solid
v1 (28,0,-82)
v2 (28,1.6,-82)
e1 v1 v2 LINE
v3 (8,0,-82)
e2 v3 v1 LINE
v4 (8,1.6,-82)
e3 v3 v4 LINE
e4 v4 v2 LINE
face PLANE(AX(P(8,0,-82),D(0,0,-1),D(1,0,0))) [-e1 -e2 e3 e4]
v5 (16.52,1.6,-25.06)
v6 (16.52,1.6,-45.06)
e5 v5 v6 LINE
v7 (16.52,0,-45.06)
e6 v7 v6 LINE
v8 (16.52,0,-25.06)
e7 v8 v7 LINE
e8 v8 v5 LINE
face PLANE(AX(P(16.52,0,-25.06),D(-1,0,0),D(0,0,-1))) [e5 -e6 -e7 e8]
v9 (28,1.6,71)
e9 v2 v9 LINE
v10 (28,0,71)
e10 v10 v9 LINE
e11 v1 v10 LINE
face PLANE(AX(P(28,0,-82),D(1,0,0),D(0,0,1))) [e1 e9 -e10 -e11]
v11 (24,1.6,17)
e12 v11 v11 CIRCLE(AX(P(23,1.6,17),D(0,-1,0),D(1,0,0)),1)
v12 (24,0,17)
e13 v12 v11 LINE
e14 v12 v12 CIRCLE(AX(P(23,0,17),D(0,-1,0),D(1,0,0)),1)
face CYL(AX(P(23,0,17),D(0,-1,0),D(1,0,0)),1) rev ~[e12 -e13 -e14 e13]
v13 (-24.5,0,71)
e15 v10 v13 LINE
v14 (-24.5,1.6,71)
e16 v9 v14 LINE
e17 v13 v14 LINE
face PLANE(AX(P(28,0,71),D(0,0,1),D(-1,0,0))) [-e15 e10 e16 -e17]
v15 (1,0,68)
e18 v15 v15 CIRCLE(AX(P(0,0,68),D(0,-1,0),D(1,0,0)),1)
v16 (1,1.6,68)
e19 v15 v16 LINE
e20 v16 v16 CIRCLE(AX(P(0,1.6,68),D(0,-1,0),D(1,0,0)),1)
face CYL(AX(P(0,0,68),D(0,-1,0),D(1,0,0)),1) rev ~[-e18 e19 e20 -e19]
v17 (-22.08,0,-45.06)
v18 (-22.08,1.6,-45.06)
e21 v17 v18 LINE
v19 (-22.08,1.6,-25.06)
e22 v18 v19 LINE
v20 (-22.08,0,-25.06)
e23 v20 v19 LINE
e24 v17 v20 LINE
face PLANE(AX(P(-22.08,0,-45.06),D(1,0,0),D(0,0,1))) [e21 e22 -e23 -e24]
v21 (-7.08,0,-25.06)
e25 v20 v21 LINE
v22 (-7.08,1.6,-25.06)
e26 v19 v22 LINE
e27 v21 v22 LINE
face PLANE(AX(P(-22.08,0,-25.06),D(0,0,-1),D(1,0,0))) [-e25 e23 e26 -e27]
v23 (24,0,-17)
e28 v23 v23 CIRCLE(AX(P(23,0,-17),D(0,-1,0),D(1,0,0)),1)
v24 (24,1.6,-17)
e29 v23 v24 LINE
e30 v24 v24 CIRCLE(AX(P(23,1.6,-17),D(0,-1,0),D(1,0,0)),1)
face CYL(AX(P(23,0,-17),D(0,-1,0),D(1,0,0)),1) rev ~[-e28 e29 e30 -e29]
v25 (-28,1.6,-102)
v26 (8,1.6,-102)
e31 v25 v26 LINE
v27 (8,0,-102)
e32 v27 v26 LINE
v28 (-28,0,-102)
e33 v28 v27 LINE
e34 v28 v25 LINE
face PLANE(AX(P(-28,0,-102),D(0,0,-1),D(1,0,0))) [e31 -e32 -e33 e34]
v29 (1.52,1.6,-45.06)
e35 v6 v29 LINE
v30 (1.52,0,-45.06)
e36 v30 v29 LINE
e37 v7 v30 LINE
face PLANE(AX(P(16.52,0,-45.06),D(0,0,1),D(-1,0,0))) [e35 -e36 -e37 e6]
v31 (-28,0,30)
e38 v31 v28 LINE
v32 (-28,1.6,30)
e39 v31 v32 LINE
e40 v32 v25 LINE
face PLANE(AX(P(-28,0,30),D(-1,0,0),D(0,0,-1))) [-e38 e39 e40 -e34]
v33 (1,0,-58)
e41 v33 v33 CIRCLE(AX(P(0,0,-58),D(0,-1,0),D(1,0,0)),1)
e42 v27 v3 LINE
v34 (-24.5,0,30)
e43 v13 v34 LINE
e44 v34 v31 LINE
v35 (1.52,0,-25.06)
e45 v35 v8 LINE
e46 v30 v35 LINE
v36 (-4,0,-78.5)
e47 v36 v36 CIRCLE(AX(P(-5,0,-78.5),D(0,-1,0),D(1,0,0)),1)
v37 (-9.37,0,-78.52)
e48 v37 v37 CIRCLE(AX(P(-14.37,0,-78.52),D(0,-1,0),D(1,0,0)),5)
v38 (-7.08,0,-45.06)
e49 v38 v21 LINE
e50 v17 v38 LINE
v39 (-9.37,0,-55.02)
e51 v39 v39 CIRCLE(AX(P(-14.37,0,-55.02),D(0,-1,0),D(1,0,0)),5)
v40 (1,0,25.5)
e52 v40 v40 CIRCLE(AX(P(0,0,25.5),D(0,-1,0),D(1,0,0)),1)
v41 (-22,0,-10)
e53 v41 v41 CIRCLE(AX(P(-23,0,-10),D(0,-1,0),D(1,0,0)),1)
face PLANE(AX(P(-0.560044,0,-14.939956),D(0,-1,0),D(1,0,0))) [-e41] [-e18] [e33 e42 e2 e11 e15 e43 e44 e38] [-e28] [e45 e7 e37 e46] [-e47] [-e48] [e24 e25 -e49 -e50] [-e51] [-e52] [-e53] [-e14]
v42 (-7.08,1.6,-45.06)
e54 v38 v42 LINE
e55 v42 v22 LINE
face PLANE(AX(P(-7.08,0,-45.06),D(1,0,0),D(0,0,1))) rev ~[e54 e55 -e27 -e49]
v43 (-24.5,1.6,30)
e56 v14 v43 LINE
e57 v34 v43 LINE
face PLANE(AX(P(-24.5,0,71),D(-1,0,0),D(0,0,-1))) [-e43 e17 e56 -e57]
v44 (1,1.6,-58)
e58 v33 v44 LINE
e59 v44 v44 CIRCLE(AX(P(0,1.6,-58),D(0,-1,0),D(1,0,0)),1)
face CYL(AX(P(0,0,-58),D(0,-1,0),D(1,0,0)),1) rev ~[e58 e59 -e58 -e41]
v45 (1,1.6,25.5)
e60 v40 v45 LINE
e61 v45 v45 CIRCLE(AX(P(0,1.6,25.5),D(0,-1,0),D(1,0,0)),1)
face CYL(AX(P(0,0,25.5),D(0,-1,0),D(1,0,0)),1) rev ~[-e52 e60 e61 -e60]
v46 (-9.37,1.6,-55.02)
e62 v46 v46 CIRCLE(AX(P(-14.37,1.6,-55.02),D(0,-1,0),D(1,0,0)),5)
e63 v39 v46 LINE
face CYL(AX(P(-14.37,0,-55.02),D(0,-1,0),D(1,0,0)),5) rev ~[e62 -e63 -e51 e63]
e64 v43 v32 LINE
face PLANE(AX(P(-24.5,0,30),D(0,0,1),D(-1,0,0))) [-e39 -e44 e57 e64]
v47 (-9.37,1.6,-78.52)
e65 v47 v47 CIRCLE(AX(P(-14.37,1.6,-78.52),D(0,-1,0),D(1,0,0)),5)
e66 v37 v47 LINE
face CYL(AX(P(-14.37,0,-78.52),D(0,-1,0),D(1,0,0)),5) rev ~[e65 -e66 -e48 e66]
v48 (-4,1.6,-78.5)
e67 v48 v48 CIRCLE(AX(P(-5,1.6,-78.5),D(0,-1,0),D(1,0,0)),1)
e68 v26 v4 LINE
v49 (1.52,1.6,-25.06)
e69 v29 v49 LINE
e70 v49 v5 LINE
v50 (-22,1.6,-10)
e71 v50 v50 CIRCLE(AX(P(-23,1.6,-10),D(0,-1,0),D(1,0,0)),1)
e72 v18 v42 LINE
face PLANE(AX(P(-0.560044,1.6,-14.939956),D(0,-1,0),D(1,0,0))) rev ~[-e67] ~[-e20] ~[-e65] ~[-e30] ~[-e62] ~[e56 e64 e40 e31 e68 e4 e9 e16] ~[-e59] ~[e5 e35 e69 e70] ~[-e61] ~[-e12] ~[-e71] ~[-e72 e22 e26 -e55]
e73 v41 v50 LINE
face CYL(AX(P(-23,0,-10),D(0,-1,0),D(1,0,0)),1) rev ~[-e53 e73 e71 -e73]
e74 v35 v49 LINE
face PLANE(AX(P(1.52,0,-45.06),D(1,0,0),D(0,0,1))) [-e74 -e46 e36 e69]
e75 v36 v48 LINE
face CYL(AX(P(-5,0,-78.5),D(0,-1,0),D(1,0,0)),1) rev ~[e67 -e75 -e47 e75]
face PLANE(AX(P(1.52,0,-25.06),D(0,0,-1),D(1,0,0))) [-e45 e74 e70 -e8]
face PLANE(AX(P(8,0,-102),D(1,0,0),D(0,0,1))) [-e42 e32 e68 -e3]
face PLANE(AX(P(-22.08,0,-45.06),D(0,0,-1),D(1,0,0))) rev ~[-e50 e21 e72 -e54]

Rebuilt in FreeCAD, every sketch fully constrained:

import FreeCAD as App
import Part
import Sketcher

V = App.Vector
Q = App.Units.Quantity

doc = App.newDocument("Part")
body = doc.addObject("PartDesign::Body", "Body")

sketch1 = body.newObject("Sketcher::SketchObject", "Sketch")
sketch1.AttachmentSupport = (doc.getObject("XZ_Plane"), [""])
sketch1.MapMode = "FlatFace"
sketch1.addGeometry(Part.LineSegment(V(28, 71, 0), V(-24.5, 71, 0)), False)
sketch1.addGeometry(Part.LineSegment(V(-24.5, 71, 0), V(-24.5, 30, 0)), False)
sketch1.addGeometry(Part.LineSegment(V(-24.5, 30, 0), V(-28, 30, 0)), False)
sketch1.addGeometry(Part.LineSegment(V(-28, 30, 0), V(-28, -102, 0)), False)
sketch1.addGeometry(Part.LineSegment(V(-28, -102, 0), V(8, -102, 0)), False)
sketch1.addGeometry(Part.LineSegment(V(8, -102, 0), V(8, -82, 0)), False)
sketch1.addGeometry(Part.LineSegment(V(8, -82, 0), V(28, -82, 0)), False)
sketch1.addGeometry(Part.LineSegment(V(28, -82, 0), V(28, 71, 0)), False)
sketch1.addGeometry(Part.Circle(V(-14.37, -78.52, 0), V(0, 0, 1), 5), False)
sketch1.addGeometry(Part.Circle(V(-14.37, -55.02, 0), V(0, 0, 1), 5), False)
sketch1.addGeometry(Part.LineSegment(V(-7.08, -45.06, 0), V(-22.08, -45.06, 0)), False)
sketch1.addGeometry(Part.LineSegment(V(-22.08, -45.06, 0), V(-22.08, -25.06, 0)), False)
sketch1.addGeometry(Part.LineSegment(V(-22.08, -25.06, 0), V(-7.08, -25.06, 0)), False)
sketch1.addGeometry(Part.LineSegment(V(-7.08, -25.06, 0), V(-7.08, -45.06, 0)), False)
sketch1.addGeometry(Part.LineSegment(V(1.52, -45.06, 0), V(1.52, -25.06, 0)), False)
sketch1.addGeometry(Part.LineSegment(V(1.52, -25.06, 0), V(16.52, -25.06, 0)), False)
sketch1.addGeometry(Part.LineSegment(V(16.52, -25.06, 0), V(16.52, -45.06, 0)), False)
sketch1.addGeometry(Part.LineSegment(V(16.52, -45.06, 0), V(1.52, -45.06, 0)), False)
sketch1.addConstraint(Sketcher.Constraint("Coincident", 0, 2, 1, 1))
sketch1.addConstraint(Sketcher.Constraint("Coincident", 1, 2, 2, 1))
sketch1.addConstraint(Sketcher.Constraint("Coincident", 2, 2, 3, 1))
sketch1.addConstraint(Sketcher.Constraint("Coincident", 3, 2, 4, 1))
sketch1.addConstraint(Sketcher.Constraint("Coincident", 4, 2, 5, 1))
sketch1.addConstraint(Sketcher.Constraint("Coincident", 5, 2, 6, 1))
sketch1.addConstraint(Sketcher.Constraint("Coincident", 6, 2, 7, 1))
sketch1.addConstraint(Sketcher.Constraint("Coincident", 7, 2, 0, 1))
sketch1.addConstraint(Sketcher.Constraint("Coincident", 10, 2, 11, 1))
sketch1.addConstraint(Sketcher.Constraint("Coincident", 11, 2, 12, 1))
sketch1.addConstraint(Sketcher.Constraint("Coincident", 12, 2, 13, 1))
sketch1.addConstraint(Sketcher.Constraint("Coincident", 13, 2, 10, 1))
sketch1.addConstraint(Sketcher.Constraint("Coincident", 14, 2, 15, 1))
sketch1.addConstraint(Sketcher.Constraint("Coincident", 15, 2, 16, 1))
sketch1.addConstraint(Sketcher.Constraint("Coincident", 16, 2, 17, 1))
sketch1.addConstraint(Sketcher.Constraint("Coincident", 17, 2, 14, 1))
sketch1.addConstraint(Sketcher.Constraint("Horizontal", 0))
sketch1.addConstraint(Sketcher.Constraint("Vertical", 1))
sketch1.addConstraint(Sketcher.Constraint("Horizontal", 2))
sketch1.addConstraint(Sketcher.Constraint("Vertical", 3))
sketch1.addConstraint(Sketcher.Constraint("Horizontal", 4))
sketch1.addConstraint(Sketcher.Constraint("Vertical", 5))
sketch1.addConstraint(Sketcher.Constraint("Horizontal", 6))
sketch1.addConstraint(Sketcher.Constraint("Vertical", 7))
sketch1.addConstraint(Sketcher.Constraint("Horizontal", 10))
sketch1.addConstraint(Sketcher.Constraint("Vertical", 11))
sketch1.addConstraint(Sketcher.Constraint("Horizontal", 12))
sketch1.addConstraint(Sketcher.Constraint("Vertical", 13))
sketch1.addConstraint(Sketcher.Constraint("Vertical", 14))
sketch1.addConstraint(Sketcher.Constraint("Horizontal", 15))
sketch1.addConstraint(Sketcher.Constraint("Vertical", 16))
sketch1.addConstraint(Sketcher.Constraint("Horizontal", 17))
sketch1.addConstraint(Sketcher.Constraint("Equal", 8, 9))
sketch1.addConstraint(Sketcher.Constraint("Horizontal", 12, 2, 14, 2))
sketch1.addConstraint(Sketcher.Constraint("Horizontal", 13, 2, 16, 2))
sketch1.addConstraint(Sketcher.Constraint("Vertical", 8, 3, 9, 3))
sketch1.addConstraint(Sketcher.Constraint("Equal", 12, 15))
sketch1.addConstraint(Sketcher.Constraint("Equal", 6, 5))
sketch1.addConstraint(Sketcher.Constraint("Equal", 5, 11))
sketch1.addConstraint(Sketcher.Constraint("Diameter", 8, Q("10 mm")))
sketch1.addConstraint(Sketcher.Constraint("DistanceX", 4, 1, 4, 2, Q("36 mm")))
sketch1.addConstraint(Sketcher.Constraint("DistanceX", 6, 1, 6, 2, Q("20 mm")))
sketch1.addConstraint(Sketcher.Constraint("DistanceX", 10, 2, 10, 1, Q("15 mm")))
sketch1.addConstraint(Sketcher.Constraint("DistanceY", 1, 2, 1, 1, Q("41 mm")))
sketch1.addConstraint(Sketcher.Constraint("DistanceY", 3, 2, 3, 1, Q("132 mm")))
sketch1.addConstraint(Sketcher.Constraint("DistanceX", 0, 2, 0, 1, Q("52.5 mm")))
sketch1.addConstraint(Sketcher.Constraint("DistanceY", -1, 1, 0, 2, Q("71 mm")))
sketch1.addConstraint(Sketcher.Constraint("DistanceX", 2, 2, -1, 1, Q("28 mm")))
sketch1.addConstraint(Sketcher.Constraint("DistanceY", 8, 3, 9, 3, Q("23.5 mm")))
sketch1.addConstraint(Sketcher.Constraint("DistanceX", 12, 2, 14, 2, Q("8.6 mm")))
sketch1.addConstraint(Sketcher.Constraint("DistanceX", 8, 3, -1, 1, Q("14.37 mm")))
sketch1.addConstraint(Sketcher.Constraint("DistanceY", 8, 3, -1, 1, Q("78.52 mm")))
sketch1.addConstraint(Sketcher.Constraint("DistanceX", 10, 2, -1, 1, Q("22.08 mm")))
sketch1.addConstraint(Sketcher.Constraint("DistanceY", 10, 2, -1, 1, Q("45.06 mm")))
pad1 = body.newObject("PartDesign::Pad", "Pad")
pad1.Profile = sketch1
pad1.Length = 1.6
pad1.Reversed = True

sketch2 = body.newObject("Sketcher::SketchObject", "Sketch001")
sketch2.AttachmentSupport = (doc.getObject("XZ_Plane"), [""])
sketch2.MapMode = "FlatFace"
sketch2.addGeometry(Part.Circle(V(0, 25.5, 0), V(0, 0, 1), 1), False)
sketch2.addGeometry(Part.Circle(V(0, 68, 0), V(0, 0, 1), 1), False)
sketch2.addGeometry(Part.Circle(V(23, 17, 0), V(0, 0, 1), 1), False)
sketch2.addGeometry(Part.Circle(V(23, -17, 0), V(0, 0, 1), 1), False)
sketch2.addGeometry(Part.Circle(V(-23, -10, 0), V(0, 0, 1), 1), False)
sketch2.addGeometry(Part.Circle(V(0, -58, 0), V(0, 0, 1), 1), False)
sketch2.addGeometry(Part.Circle(V(-5, -78.5, 0), V(0, 0, 1), 1), False)
sketch2.addConstraint(Sketcher.Constraint("Equal", 0, 1))
sketch2.addConstraint(Sketcher.Constraint("Equal", 1, 2))
sketch2.addConstraint(Sketcher.Constraint("Equal", 2, 3))
sketch2.addConstraint(Sketcher.Constraint("Equal", 3, 4))
sketch2.addConstraint(Sketcher.Constraint("Equal", 4, 5))
sketch2.addConstraint(Sketcher.Constraint("Equal", 5, 6))
sketch2.addConstraint(Sketcher.Constraint("Symmetric", 2, 3, 3, 3, -1))
sketch2.addConstraint(Sketcher.Constraint("PointOnObject", 0, 3, -2))
sketch2.addConstraint(Sketcher.Constraint("PointOnObject", 1, 3, -2))
sketch2.addConstraint(Sketcher.Constraint("PointOnObject", 5, 3, -2))
sketch2.addConstraint(Sketcher.Constraint("Diameter", 0, Q("2 mm")))
sketch2.addConstraint(Sketcher.Constraint("DistanceY", -1, 1, 1, 3, Q("68 mm")))
sketch2.addConstraint(Sketcher.Constraint("DistanceX", -1, 1, 2, 3, Q("23 mm")))
sketch2.addConstraint(Sketcher.Constraint("DistanceY", -1, 1, 2, 3, Q("17 mm")))
sketch2.addConstraint(Sketcher.Constraint("DistanceX", 4, 3, -1, 1, Q("23 mm")))
sketch2.addConstraint(Sketcher.Constraint("DistanceY", 4, 3, -1, 1, Q("10 mm")))
sketch2.addConstraint(Sketcher.Constraint("DistanceY", 5, 3, -1, 1, Q("58 mm")))
sketch2.addConstraint(Sketcher.Constraint("DistanceX", 6, 3, -1, 1, Q("5 mm")))
sketch2.addConstraint(Sketcher.Constraint("DistanceY", 6, 3, 0, 3, Q("104 mm")))
sketch2.addConstraint(Sketcher.Constraint("DistanceY", -1, 1, 0, 3, Q("25.5 mm")))
pocket1 = body.newObject("PartDesign::Pocket", "Pocket")
pocket1.Profile = sketch2
pocket1.Length = 25

doc.recompute()
